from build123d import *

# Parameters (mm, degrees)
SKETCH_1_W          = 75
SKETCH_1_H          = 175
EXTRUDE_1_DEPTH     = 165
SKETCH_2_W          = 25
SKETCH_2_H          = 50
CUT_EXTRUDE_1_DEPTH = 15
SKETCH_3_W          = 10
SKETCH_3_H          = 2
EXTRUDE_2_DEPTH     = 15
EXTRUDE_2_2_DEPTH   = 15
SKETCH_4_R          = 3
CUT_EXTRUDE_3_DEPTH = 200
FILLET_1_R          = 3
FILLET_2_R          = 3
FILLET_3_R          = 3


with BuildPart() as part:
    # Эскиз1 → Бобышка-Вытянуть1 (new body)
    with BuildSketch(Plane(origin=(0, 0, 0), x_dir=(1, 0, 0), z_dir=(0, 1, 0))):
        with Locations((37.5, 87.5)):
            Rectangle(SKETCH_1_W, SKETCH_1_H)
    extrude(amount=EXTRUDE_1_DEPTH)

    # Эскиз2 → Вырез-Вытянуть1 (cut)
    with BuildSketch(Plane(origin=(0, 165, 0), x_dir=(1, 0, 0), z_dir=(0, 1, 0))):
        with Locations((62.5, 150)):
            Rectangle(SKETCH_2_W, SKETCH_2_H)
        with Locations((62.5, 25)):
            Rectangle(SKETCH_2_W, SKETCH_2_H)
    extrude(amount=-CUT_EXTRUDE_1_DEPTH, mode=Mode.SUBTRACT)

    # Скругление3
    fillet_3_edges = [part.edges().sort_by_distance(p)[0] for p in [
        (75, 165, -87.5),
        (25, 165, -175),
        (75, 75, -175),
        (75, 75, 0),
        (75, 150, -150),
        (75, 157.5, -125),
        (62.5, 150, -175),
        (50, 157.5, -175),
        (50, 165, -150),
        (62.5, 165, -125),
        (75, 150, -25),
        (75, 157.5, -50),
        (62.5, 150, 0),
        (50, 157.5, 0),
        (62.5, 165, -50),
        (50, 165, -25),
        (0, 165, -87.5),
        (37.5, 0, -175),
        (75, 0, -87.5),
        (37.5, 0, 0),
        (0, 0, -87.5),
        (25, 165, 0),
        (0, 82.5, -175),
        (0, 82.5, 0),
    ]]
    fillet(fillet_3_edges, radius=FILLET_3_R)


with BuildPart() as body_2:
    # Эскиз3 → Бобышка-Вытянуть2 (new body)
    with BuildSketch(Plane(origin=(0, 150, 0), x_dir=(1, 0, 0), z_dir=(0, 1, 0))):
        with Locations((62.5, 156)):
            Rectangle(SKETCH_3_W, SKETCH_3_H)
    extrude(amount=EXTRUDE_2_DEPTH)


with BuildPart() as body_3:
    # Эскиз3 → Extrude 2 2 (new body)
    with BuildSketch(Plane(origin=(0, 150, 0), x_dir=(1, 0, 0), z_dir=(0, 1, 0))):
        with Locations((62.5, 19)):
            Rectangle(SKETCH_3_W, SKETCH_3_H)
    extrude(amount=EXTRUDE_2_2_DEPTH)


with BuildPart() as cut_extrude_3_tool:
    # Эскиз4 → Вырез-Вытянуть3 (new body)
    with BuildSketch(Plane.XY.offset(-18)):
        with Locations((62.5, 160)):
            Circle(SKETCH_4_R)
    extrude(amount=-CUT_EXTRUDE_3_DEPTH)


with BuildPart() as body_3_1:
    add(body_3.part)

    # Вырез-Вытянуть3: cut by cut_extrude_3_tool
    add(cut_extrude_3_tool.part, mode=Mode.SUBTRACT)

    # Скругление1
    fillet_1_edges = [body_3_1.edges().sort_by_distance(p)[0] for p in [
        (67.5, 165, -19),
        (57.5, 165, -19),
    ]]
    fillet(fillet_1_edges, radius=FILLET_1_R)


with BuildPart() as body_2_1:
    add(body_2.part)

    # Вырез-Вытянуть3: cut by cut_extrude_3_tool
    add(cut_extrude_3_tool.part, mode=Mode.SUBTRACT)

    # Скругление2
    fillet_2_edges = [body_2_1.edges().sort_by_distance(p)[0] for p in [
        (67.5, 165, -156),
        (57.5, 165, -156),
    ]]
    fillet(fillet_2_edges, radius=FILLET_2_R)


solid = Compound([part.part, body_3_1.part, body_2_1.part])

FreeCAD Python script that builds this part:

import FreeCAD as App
import Part
import Sketcher

V = App.Vector


def edges_at(feature, points):
    """Names of the edges that pass closest to the given points."""
    edges = feature.Shape.Edges
    near = lambda p: min(range(len(edges)), key=lambda i: edges[i].distToShape(Part.Vertex(*p))[0])
    return sorted({f"Edge{near(p) + 1}" for p in points})


def add_polygon(sketch, points):
    """Adds a closed chain of lines whose ends are joined by coincident constraints."""
    first, n = sketch.GeometryCount, len(points)
    for a, b in zip(points, points[1:] + points[:1]):
        sketch.addGeometry(Part.LineSegment(App.Vector(*a, 0), App.Vector(*b, 0)), False)
    for i in range(n):
        sketch.addConstraint(Sketcher.Constraint("Coincident", first + i, 2, first + (i + 1) % n, 1))

doc = App.newDocument("Part")
body = doc.addObject("PartDesign::Body", "Body")

sketch1 = doc.addObject("Sketcher::SketchObject", "Sketch")
body.addObject(sketch1)
sketch1.AttachmentSupport = (doc.XZ_Plane, [""])
sketch1.MapMode = "FlatFace"
add_polygon(sketch1, [(0, -175), (0, 0), (75, 0), (75, -175)])
sketch1.addConstraint(Sketcher.Constraint("Vertical", 0))
sketch1.addConstraint(Sketcher.Constraint("Horizontal", 1))
sketch1.addConstraint(Sketcher.Constraint("Vertical", 2))
sketch1.addConstraint(Sketcher.Constraint("Horizontal", 3))
sketch1.addConstraint(Sketcher.Constraint("Coincident", 0, 2, -1, 1))
sketch1.addConstraint(Sketcher.Constraint("DistanceX", 1, 1, 1, 2, 75.0))
sketch1.addConstraint(Sketcher.Constraint("DistanceY", 0, 1, 0, 2, 175.0))
pad1 = doc.addObject("PartDesign::Pad", "Pad")
body.addObject(pad1)
pad1.Profile = sketch1
pad1.Length = 165
pad1.Reversed = True

sketch2 = doc.addObject("Sketcher::SketchObject", "Sketch001")
body.addObject(sketch2)
sketch2.AttachmentSupport = (doc.XZ_Plane, [""])
sketch2.MapMode = "FlatFace"
sketch2.AttachmentOffset = App.Placement(V(0, 0, -165), App.Rotation())
add_polygon(sketch2, [(50, -175), (50, -125), (75, -125), (75, -175)])
add_polygon(sketch2, [(50, -50), (50, 0), (75, 0), (75, -50)])
sketch2.addConstraint(Sketcher.Constraint("Vertical", 0))
sketch2.addConstraint(Sketcher.Constraint("Horizontal", 1))
sketch2.addConstraint(Sketcher.Constraint("Vertical", 2))
sketch2.addConstraint(Sketcher.Constraint("Horizontal", 3))
sketch2.addConstraint(Sketcher.Constraint("Vertical", 4))
sketch2.addConstraint(Sketcher.Constraint("Horizontal", 5))
sketch2.addConstraint(Sketcher.Constraint("Vertical", 6))
sketch2.addConstraint(Sketcher.Constraint("Horizontal", 7))
sketch2.addConstraint(Sketcher.Constraint("PointOnObject", 4, 2, -1))
sketch2.addConstraint(Sketcher.Constraint("Vertical", 3, 2, 4, 2))
sketch2.addConstraint(Sketcher.Constraint("Vertical", 2, 2, 5, 2))
sketch2.addConstraint(Sketcher.Constraint("Equal", 2, 4))
sketch2.addConstraint(Sketcher.Constraint("DistanceX", 1, 1, 1, 2, 25.0))
sketch2.addConstraint(Sketcher.Constraint("DistanceY", 0, 1, 0, 2, 50.0))
sketch2.addConstraint(Sketcher.Constraint("DistanceX", -1, 1, 0, 2, 50.0))
sketch2.addConstraint(Sketcher.Constraint("DistanceY", 0, 2, -1, 1, 125.0))
pocket1 = doc.addObject("PartDesign::Pocket", "Pocket")
body.addObject(pocket1)
pocket1.Profile = sketch2
pocket1.Length = 15
pocket1.Reversed = True
doc.recompute()

fillet = doc.addObject("PartDesign::Fillet", "Fillet")
body.addObject(fillet)
fillet.Base = (pocket1, edges_at(pocket1, [
    (75, 165, -87.5),
    (25, 165, -175),
    (75, 75, -175),
    (75, 75, 0),
    (75, 150, -150),
    (75, 157.5, -125),
    (62.5, 150, -175),
    (50, 157.5, -175),
    (50, 165, -150),
    (62.5, 165, -125),
    (75, 150, -25),
    (75, 157.5, -50),
    (62.5, 150, 0),
    (50, 157.5, 0),
    (62.5, 165, -50),
    (50, 165, -25),
    (0, 165, -87.5),
    (37.5, 0, -175),
    (75, 0, -87.5),
    (37.5, 0, 0),
    (0, 0, -87.5),
    (25, 165, 0),
    (0, 82.5, -175),
    (0, 82.5, 0),
]))
fillet.Radius = 3
body2 = doc.addObject("PartDesign::Body", "Body001")

sketch3 = doc.addObject("Sketcher::SketchObject", "Sketch002")
body2.addObject(sketch3)
sketch3.AttachmentSupport = (doc.getObject("XZ_Plane001"), [""])
sketch3.MapMode = "FlatFace"
sketch3.AttachmentOffset = App.Placement(V(0, 0, -150), App.Rotation())
add_polygon(sketch3, [(57.5, -157), (57.5, -155), (67.5, -155), (67.5, -157)])
sketch3.addConstraint(Sketcher.Constraint("Vertical", 0))
sketch3.addConstraint(Sketcher.Constraint("Horizontal", 1))
sketch3.addConstraint(Sketcher.Constraint("Vertical", 2))
sketch3.addConstraint(Sketcher.Constraint("Horizontal", 3))
sketch3.addConstraint(Sketcher.Constraint("DistanceX", 1, 1, 1, 2, 10.0))
sketch3.addConstraint(Sketcher.Constraint("DistanceY", 0, 1, 0, 2, 2.0))
sketch3.addConstraint(Sketcher.Constraint("DistanceY", 0, 2, -1, 1, 155.0))
sketch3.addConstraint(Sketcher.Constraint("DistanceX", -1, 1, 0, 2, 57.5))
pad2 = doc.addObject("PartDesign::Pad", "Pad001")
body2.addObject(pad2)
pad2.Profile = sketch3
pad2.Length = 15
pad2.Reversed = True
body3 = doc.addObject("PartDesign::Body", "Body002")

sketch4 = doc.addObject("Sketcher::SketchObject", "Sketch003")
body3.addObject(sketch4)
sketch4.AttachmentSupport = (doc.getObject("XZ_Plane002"), [""])
sketch4.MapMode = "FlatFace"
sketch4.AttachmentOffset = App.Placement(V(0, 0, -150), App.Rotation())
add_polygon(sketch4, [(57.5, -20), (57.5, -18), (67.5, -18), (67.5, -20)])
sketch4.addConstraint(Sketcher.Constraint("Vertical", 0))
sketch4.addConstraint(Sketcher.Constraint("Horizontal", 1))
sketch4.addConstraint(Sketcher.Constraint("Vertical", 2))
sketch4.addConstraint(Sketcher.Constraint("Horizontal", 3))
sketch4.addConstraint(Sketcher.Constraint("DistanceX", 1, 1, 1, 2, 10.0))
sketch4.addConstraint(Sketcher.Constraint("DistanceY", 0, 1, 0, 2, 2.0))
sketch4.addConstraint(Sketcher.Constraint("DistanceY", 0, 2, -1, 1, 18.0))
sketch4.addConstraint(Sketcher.Constraint("DistanceX", -1, 1, 0, 2, 57.5))
pad3 = doc.addObject("PartDesign::Pad", "Pad002")
body3.addObject(pad3)
pad3.Profile = sketch4
pad3.Length = 15
pad3.Reversed = True
body4 = doc.addObject("PartDesign::Body", "Body003")

sketch5 = doc.addObject("Sketcher::SketchObject", "Sketch004")
body4.addObject(sketch5)
sketch5.AttachmentSupport = (doc.getObject("XY_Plane003"), [""])
sketch5.MapMode = "FlatFace"
sketch5.AttachmentOffset = App.Placement(V(0, 0, -18), App.Rotation())
sketch5.addGeometry(Part.Circle(V(62.5, 160, 0), V(0, 0, 1), 3), False)
sketch5.addConstraint(Sketcher.Constraint("Diameter", 0, 6.0))
sketch5.addConstraint(Sketcher.Constraint("DistanceY", -1, 1, 0, 3, 160.0))
sketch5.addConstraint(Sketcher.Constraint("DistanceX", -1, 1, 0, 3, 62.5))
pad4 = doc.addObject("PartDesign::Pad", "Pad003")
body4.addObject(pad4)
pad4.Profile = sketch5
pad4.Length = 200
pad4.Reversed = True
doc.recompute()

body5 = doc.addObject("PartDesign::Body", "Body004")
body5.BaseFeature = body4
boolean = doc.addObject("PartDesign::Boolean", "Boolean")
body3.addObject(boolean)
boolean.Type = "Cut"
boolean.addObjects([body5])
doc.recompute()

fillet2 = doc.addObject("PartDesign::Fillet", "Fillet001")
body3.addObject(fillet2)
fillet2.Base = (boolean, edges_at(boolean, [(67.5, 165, -19), (57.5, 165, -19)]))
fillet2.Radius = 3
doc.recompute()

boolean2 = doc.addObject("PartDesign::Boolean", "Boolean001")
body2.addObject(boolean2)
boolean2.Type = "Cut"
boolean2.addObjects([body4])
doc.recompute()

fillet3 = doc.addObject("PartDesign::Fillet", "Fillet002")
body2.addObject(fillet3)
fillet3.Base = (boolean2, edges_at(boolean2, [(67.5, 165, -156), (57.5, 165, -156)]))
fillet3.Radius = 3

doc.recompute()
